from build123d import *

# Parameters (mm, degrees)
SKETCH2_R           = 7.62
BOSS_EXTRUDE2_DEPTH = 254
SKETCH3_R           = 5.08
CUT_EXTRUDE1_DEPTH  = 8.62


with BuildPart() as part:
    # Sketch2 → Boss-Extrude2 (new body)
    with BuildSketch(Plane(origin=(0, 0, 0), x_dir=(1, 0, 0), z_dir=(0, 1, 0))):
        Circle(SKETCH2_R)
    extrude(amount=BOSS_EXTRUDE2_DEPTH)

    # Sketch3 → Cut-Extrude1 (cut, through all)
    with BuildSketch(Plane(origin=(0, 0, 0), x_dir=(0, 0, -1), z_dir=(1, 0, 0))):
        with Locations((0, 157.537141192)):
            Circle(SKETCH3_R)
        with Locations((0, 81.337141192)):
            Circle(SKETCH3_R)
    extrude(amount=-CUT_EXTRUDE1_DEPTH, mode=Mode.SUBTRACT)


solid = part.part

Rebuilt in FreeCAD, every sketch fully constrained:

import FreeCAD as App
import Part
import Sketcher

V = App.Vector
Q = App.Units.Quantity

doc = App.newDocument("Part")
params = doc.addObject("Spreadsheet::Sheet", "Params")
for row, (alias, value) in enumerate([
    ("sketch1_diameter", "0.6 in"),
    ("pad1_length", "10 in"),
    ("sketch2_diameter", "0.4 in"),
], start=1):
    params.set(f"A{row}", alias)
    params.set(f"B{row}", "=" + value)
    params.setAlias(f"B{row}", alias)

body = doc.addObject("PartDesign::Body", "Body")

sketch1 = doc.addObject("Sketcher::SketchObject", "Sketch")
body.addObject(sketch1)
sketch1.AttachmentSupport = (doc.XZ_Plane, [""])
sketch1.MapMode = "FlatFace"
sketch1.addGeometry(Part.Circle(V(0, 0, 0), V(0, 0, 1), 8), False)
sketch1.addConstraint([
    Sketcher.Constraint("Coincident", 0, 3, -1, 1),
    Sketcher.Constraint("Diameter", 0, Q("0.6 in")),
])
sketch1.setExpression("Constraints[1]", "Params.sketch1_diameter")
pad1 = doc.addObject("PartDesign::Pad", "Pad")
body.addObject(pad1)
pad1.Profile = sketch1
pad1.setExpression("Length", "Params.pad1_length")
pad1.Reversed = True

sketch2 = doc.addObject("Sketcher::SketchObject", "Sketch001")
body.addObject(sketch2)
sketch2.AttachmentSupport = (doc.YZ_Plane, [""])
sketch2.MapMode = "FlatFace"
sketch2.addGeometry([
    Part.Circle(V(158, 0, 0), V(0, 0, 1), 5),
    Part.Circle(V(81, 0, 0), V(0, 0, 1), 5),
], False)
sketch2.addConstraint([
    Sketcher.Constraint("Equal", 0, 1),
    Sketcher.Constraint("PointOnObject", 0, 3, -1),
    Sketcher.Constraint("PointOnObject", 1, 3, -1),
    Sketcher.Constraint("Diameter", 0, Q("0.4 in")),
    Sketcher.Constraint("DistanceX", 1, 3, 0, 3, Q("3 in")),
    Sketcher.Constraint("DistanceX", -1, 1, 0, 3, 157.537141),
])
sketch2.setExpression("Constraints[3]", "Params.sketch2_diameter")
pocket1 = doc.addObject("PartDesign::Pocket", "Pocket")
body.addObject(pocket1)
pocket1.Profile = sketch2
pocket1.Type = "ThroughAll"

doc.recompute()
